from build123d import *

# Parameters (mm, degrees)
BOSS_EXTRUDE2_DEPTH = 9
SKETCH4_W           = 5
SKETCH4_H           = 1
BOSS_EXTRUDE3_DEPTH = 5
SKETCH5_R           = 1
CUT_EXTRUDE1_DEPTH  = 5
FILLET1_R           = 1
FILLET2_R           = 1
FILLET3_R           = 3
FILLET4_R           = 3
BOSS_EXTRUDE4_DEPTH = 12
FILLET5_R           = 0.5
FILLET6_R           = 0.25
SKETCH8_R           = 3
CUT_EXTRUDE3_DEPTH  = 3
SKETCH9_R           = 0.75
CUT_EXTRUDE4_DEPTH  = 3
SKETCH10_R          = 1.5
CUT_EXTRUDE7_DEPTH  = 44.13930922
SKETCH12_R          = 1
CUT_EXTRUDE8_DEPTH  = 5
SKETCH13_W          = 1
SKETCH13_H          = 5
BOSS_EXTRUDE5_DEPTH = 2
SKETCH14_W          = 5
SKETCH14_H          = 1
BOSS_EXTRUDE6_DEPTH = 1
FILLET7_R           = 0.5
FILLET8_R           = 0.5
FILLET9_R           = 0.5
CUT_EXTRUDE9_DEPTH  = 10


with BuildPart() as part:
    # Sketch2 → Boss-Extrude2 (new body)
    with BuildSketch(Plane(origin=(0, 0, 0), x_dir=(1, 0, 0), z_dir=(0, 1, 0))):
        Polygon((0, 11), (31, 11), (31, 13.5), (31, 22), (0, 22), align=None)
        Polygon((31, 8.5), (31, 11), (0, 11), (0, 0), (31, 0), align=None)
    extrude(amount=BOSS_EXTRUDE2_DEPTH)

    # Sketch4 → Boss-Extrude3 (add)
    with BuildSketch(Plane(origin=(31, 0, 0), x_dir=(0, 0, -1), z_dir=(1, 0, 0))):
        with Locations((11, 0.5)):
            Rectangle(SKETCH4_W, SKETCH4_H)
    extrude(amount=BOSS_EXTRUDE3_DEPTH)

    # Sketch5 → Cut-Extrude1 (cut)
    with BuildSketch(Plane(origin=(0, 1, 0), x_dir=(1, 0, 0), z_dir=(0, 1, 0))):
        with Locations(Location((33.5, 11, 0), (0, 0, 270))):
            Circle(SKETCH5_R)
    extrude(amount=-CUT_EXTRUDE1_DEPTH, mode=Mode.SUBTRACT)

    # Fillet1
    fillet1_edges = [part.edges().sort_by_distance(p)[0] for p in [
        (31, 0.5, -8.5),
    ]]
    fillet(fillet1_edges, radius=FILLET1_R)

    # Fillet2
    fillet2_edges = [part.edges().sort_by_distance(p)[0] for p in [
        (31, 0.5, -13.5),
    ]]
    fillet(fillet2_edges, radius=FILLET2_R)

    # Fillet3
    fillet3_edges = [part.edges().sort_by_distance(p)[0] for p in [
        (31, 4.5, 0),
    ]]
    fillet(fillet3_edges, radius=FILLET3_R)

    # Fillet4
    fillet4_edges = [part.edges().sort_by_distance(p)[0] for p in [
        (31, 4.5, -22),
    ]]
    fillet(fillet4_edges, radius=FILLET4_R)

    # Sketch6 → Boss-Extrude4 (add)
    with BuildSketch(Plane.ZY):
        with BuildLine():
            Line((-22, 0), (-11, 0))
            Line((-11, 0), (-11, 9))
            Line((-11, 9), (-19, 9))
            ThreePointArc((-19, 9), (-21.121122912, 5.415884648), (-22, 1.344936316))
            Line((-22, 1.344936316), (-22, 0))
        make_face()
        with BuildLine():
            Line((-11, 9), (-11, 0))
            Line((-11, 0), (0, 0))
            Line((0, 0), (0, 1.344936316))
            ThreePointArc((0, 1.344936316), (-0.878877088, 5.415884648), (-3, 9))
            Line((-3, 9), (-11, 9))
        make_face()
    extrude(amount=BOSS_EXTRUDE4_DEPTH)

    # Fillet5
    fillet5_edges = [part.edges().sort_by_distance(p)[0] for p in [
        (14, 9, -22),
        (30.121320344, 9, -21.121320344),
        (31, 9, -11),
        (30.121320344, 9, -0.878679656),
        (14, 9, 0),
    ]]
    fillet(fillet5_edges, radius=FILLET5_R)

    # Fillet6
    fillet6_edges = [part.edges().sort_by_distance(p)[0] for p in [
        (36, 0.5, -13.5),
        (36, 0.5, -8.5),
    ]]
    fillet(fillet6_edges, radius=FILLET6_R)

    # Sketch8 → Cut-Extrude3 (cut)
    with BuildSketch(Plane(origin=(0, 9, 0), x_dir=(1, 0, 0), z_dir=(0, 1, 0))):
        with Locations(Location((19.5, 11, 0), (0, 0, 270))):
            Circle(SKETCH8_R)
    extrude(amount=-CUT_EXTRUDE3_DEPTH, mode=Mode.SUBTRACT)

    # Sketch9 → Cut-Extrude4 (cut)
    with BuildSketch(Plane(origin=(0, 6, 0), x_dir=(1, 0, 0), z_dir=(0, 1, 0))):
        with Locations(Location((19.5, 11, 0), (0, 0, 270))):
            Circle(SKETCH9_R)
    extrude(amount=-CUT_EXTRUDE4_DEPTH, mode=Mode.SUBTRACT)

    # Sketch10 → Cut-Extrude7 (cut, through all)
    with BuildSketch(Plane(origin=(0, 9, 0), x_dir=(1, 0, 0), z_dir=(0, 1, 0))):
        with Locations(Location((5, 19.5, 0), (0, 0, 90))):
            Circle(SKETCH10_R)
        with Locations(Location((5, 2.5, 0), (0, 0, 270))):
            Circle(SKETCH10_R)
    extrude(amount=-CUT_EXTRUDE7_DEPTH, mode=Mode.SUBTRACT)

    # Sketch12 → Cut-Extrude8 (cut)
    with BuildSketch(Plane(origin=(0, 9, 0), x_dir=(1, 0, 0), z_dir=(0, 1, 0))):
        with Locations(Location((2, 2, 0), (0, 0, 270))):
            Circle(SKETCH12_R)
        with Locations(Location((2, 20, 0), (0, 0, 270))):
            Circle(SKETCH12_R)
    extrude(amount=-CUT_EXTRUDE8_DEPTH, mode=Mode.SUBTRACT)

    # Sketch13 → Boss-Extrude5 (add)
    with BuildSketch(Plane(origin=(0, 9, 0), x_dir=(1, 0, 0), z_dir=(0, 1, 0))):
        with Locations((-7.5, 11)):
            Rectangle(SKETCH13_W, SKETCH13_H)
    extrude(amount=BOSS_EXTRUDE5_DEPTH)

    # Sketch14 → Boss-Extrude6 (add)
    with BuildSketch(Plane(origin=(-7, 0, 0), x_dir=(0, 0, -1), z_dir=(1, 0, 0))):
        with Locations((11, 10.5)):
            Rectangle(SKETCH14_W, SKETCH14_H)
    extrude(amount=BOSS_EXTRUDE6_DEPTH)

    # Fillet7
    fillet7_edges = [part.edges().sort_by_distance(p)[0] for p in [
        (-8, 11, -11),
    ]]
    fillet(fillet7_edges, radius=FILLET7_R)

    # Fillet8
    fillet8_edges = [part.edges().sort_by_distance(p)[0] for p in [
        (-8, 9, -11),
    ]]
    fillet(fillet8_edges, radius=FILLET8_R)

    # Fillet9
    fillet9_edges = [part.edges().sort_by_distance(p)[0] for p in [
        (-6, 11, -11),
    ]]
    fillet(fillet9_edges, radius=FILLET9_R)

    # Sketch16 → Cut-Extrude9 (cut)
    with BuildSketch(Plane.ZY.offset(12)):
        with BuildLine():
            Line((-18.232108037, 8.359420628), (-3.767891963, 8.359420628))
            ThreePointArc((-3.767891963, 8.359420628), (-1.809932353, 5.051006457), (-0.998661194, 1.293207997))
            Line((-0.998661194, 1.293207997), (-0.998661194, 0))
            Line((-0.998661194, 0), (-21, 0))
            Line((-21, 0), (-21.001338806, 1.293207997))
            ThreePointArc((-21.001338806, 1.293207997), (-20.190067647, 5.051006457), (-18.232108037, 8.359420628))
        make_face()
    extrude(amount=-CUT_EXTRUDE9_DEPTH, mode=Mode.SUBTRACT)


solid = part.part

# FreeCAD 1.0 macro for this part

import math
import FreeCAD as App
import Part
import Sketcher


def edges_at(feature, points):
    """Names of the edges that pass closest to the given points."""
    edges = feature.Shape.Edges
    near = lambda p: min(range(len(edges)), key=lambda i: edges[i].distToShape(Part.Vertex(*p))[0])
    return sorted({f"Edge{near(p) + 1}" for p in points})

doc = App.newDocument("Part")
params = doc.addObject("Spreadsheet::Sheet", "Params")
for row, (alias, value) in enumerate([
    ("sketch1_width", "31 mm"),
    ("sketch1_height", "22 mm"),
    ("pad1_length", "9 mm"),
    ("sketch2_width", "1 mm"),
    ("sketch2_height", "5 mm"),
    ("pad2_length", "5 mm"),
    ("sketch3_diameter", "2 mm"),
    ("pocket1_length", "5 mm"),
    ("fillet_radius", "1 mm"),
    ("fillet2_radius", "1 mm"),
    ("fillet3_radius", "3 mm"),
    ("fillet4_radius", "3 mm"),
    ("sketch4_radius", "13 mm"),
    ("sketch4_height", "22 mm"),
    ("sketch4_height2", "16 mm"),
    ("pad3_length", "12 mm"),
    ("fillet5_radius", "0.5 mm"),
    ("fillet6_radius", "0.25 mm"),
    ("sketch5_diameter", "6 mm"),
    ("pocket2_length", "3 mm"),
    ("sketch6_diameter", "1.5 mm"),
    ("pocket3_length", "3 mm"),
    ("sketch7_diameter", "3 mm"),
    ("sketch8_diameter", "2 mm"),
    ("pocket5_length", "5 mm"),
    ("sketch9_width", "1 mm"),
    ("sketch9_height", "5 mm"),
    ("pad4_length", "2 mm"),
    ("sketch10_width", "1 mm"),
    ("sketch10_height", "5 mm"),
    ("pad5_length", "1 mm"),
    ("fillet7_radius", "0.5 mm"),
    ("fillet8_radius", "0.5 mm"),
    ("fillet9_radius", "0.5 mm"),
    ("sketch11_radius", "12 mm"),
    ("pocket6_length", "10 mm"),
], start=1):
    params.set(f"A{row}", alias)
    params.set(f"B{row}", "=" + value)
    params.setAlias(f"B{row}", alias)

body = doc.addObject("PartDesign::Body", "Body")

sketch1 = body.newObject("Sketcher::SketchObject", "Sketch")
sketch1.AttachmentSupport = (doc.getObject("XZ_Plane"), [""])
sketch1.MapMode = "FlatFace"
sketch1.addGeometry([
    Part.LineSegment(App.Vector(31, -22, 0), App.Vector(0, -22, 0)),
    Part.LineSegment(App.Vector(0, -22, 0), App.Vector(0, 0, 0)),
    Part.LineSegment(App.Vector(0, 0, 0), App.Vector(31, 0, 0)),
    Part.LineSegment(App.Vector(31, 0, 0), App.Vector(31, -22, 0)),
], False)
sketch1.addConstraint([
    Sketcher.Constraint("Coincident", 0, 2, 1, 1),
    Sketcher.Constraint("Coincident", 1, 2, 2, 1),
    Sketcher.Constraint("Coincident", 2, 2, 3, 1),
    Sketcher.Constraint("Coincident", 3, 2, 0, 1),
    Sketcher.Constraint("Horizontal", 0),
    Sketcher.Constraint("Vertical", 1),
    Sketcher.Constraint("Horizontal", 2),
    Sketcher.Constraint("Vertical", 3),
    Sketcher.Constraint("Coincident", 1, 2, -1, 1),
    Sketcher.Constraint("DistanceX", 0, 2, 0, 1, 31.0),
    Sketcher.Constraint("DistanceY", 1, 1, 1, 2, 22.0),
])
sketch1.setExpression("Constraints[9]", "Params.sketch1_width")
sketch1.setExpression("Constraints[10]", "Params.sketch1_height")
pad1 = body.newObject("PartDesign::Pad", "Pad")
pad1.Profile = sketch1
pad1.setExpression("Length", "Params.pad1_length")
pad1.Reversed = True

sketch2 = body.newObject("Sketcher::SketchObject", "Sketch001")
sketch2.AttachmentSupport = (doc.getObject("YZ_Plane"), [""])
sketch2.MapMode = "FlatFace"
sketch2.AttachmentOffset = App.Placement(App.Vector(0, 0, 31), App.Rotation())
sketch2.addGeometry([
    Part.LineSegment(App.Vector(1, -8.5, 0), App.Vector(0, -8.5, 0)),
    Part.LineSegment(App.Vector(0, -8.5, 0), App.Vector(0, -13.5, 0)),
    Part.LineSegment(App.Vector(0, -13.5, 0), App.Vector(1, -13.5, 0)),
    Part.LineSegment(App.Vector(1, -13.5, 0), App.Vector(1, -8.5, 0)),
], False)
sketch2.addConstraint([
    Sketcher.Constraint("Coincident", 0, 2, 1, 1),
    Sketcher.Constraint("Coincident", 1, 2, 2, 1),
    Sketcher.Constraint("Coincident", 2, 2, 3, 1),
    Sketcher.Constraint("Coincident", 3, 2, 0, 1),
    Sketcher.Constraint("Horizontal", 0),
    Sketcher.Constraint("Vertical", 1),
    Sketcher.Constraint("Horizontal", 2),
    Sketcher.Constraint("Vertical", 3),
    Sketcher.Constraint("PointOnObject", 0, 2, -2),
    Sketcher.Constraint("DistanceX", 0, 2, 0, 1, 1.0),
    Sketcher.Constraint("DistanceY", 1, 2, 1, 1, 5.0),
    Sketcher.Constraint("DistanceY", 0, 2, -1, 1, 8.5),
])
sketch2.setExpression("Constraints[9]", "Params.sketch2_width")
sketch2.setExpression("Constraints[10]", "Params.sketch2_height")
pad2 = body.newObject("PartDesign::Pad", "Pad001")
pad2.Profile = sketch2
pad2.setExpression("Length", "Params.pad2_length")

sketch3 = body.newObject("Sketcher::SketchObject", "Sketch002")
sketch3.AttachmentSupport = (doc.getObject("XZ_Plane"), [""])
sketch3.MapMode = "FlatFace"
sketch3.AttachmentOffset = App.Placement(App.Vector(0, 0, -1), App.Rotation())
sketch3.addGeometry(Part.Circle(App.Vector(33.5, -11, 0), App.Vector(0, 0, 1), 1), False)
sketch3.addConstraint([
    Sketcher.Constraint("Diameter", 0, 2.0),
    Sketcher.Constraint("DistanceY", 0, 3, -1, 1, 11.0),
    Sketcher.Constraint("DistanceX", -1, 1, 0, 3, 33.5),
])
sketch3.setExpression("Constraints[0]", "Params.sketch3_diameter")
pocket1 = body.newObject("PartDesign::Pocket", "Pocket")
pocket1.Profile = sketch3
pocket1.setExpression("Length", "Params.pocket1_length")
pocket1.Reversed = True
doc.recompute()

fillet = body.newObject("PartDesign::Fillet", "Fillet")
fillet.Base = (pocket1, edges_at(pocket1, [(31, 0.5, -8.5)]))
fillet.setExpression("Radius", "Params.fillet_radius")
doc.recompute()

fillet2 = body.newObject("PartDesign::Fillet", "Fillet001")
fillet2.Base = (fillet, edges_at(fillet, [(31, 0.5, -13.5)]))
fillet2.setExpression("Radius", "Params.fillet2_radius")
doc.recompute()

fillet3 = body.newObject("PartDesign::Fillet", "Fillet002")
fillet3.Base = (fillet2, edges_at(fillet2, [(31, 4.5, 0)]))
fillet3.setExpression("Radius", "Params.fillet3_radius")
doc.recompute()

fillet4 = body.newObject("PartDesign::Fillet", "Fillet003")
fillet4.Base = (fillet3, edges_at(fillet3, [(31, 4.5, -22)]))
fillet4.setExpression("Radius", "Params.fillet4_radius")

sketch4 = body.newObject("Sketcher::SketchObject", "Sketch003")
sketch4.AttachmentSupport = (doc.getObject("YZ_Plane"), [""])
sketch4.MapMode = "FlatFace"
sketch4.addGeometry([
    Part.LineSegment(App.Vector(0, -22, 0), App.Vector(0, 0, 0)),
    Part.LineSegment(App.Vector(0, 0, 0), App.Vector(1.344936, 0, 0)),
    Part.ArcOfCircle(Part.Circle(App.Vector(0.672468, -12.982596, 0), App.Vector(0, 0, 1), 13), math.radians(50.164965), math.radians(87.034862)),
    Part.LineSegment(App.Vector(9, -3, 0), App.Vector(9, -19, 0)),
    Part.ArcOfCircle(Part.Circle(App.Vector(0.672468, -9.017404, 0), App.Vector(0, 0, 1), 13), math.radians(-87.034862), math.radians(-50.164965)),
    Part.LineSegment(App.Vector(1.344936, -22, 0), App.Vector(0, -22, 0)),
], False)
sketch4.addConstraint([
    Sketcher.Constraint("Coincident", 0, 2, 1, 1),
    Sketcher.Constraint("Coincident", 1, 2, 2, 2),
    Sketcher.Constraint("Coincident", 2, 1, 3, 1),
    Sketcher.Constraint("Coincident", 3, 2, 4, 2),
    Sketcher.Constraint("Coincident", 4, 1, 5, 1),
    Sketcher.Constraint("Coincident", 5, 2, 0, 1),
    Sketcher.Constraint("Vertical", 0),
    Sketcher.Constraint("Horizontal", 1),
    Sketcher.Constraint("Vertical", 3),
    Sketcher.Constraint("Horizontal", 5),
    Sketcher.Constraint("Coincident", 0, 2, -1, 1),
    Sketcher.Constraint("Equal", 2, 4),
    Sketcher.Constraint("Vertical", 2, 3, 4, 3),
    Sketcher.Constraint("Vertical", 1, 2, 4, 1),
    Sketcher.Constraint("Radius", 2, 13.0),
    Sketcher.Constraint("DistanceY", 0, 1, 0, 2, 22.0),
    Sketcher.Constraint("DistanceY", 3, 2, 3, 1, 16.0),
    Sketcher.Constraint("DistanceX", -1, 1, 2, 1, 9.0),
    Sketcher.Constraint("DistanceX", 1, 1, 1, 2, 1.344936),
])
sketch4.setExpression("Constraints[14]", "Params.sketch4_radius")
sketch4.setExpression("Constraints[15]", "Params.sketch4_height")
sketch4.setExpression("Constraints[16]", "Params.sketch4_height2")
pad3 = body.newObject("PartDesign::Pad", "Pad002")
pad3.Profile = sketch4
pad3.setExpression("Length", "Params.pad3_length")
pad3.Reversed = True
doc.recompute()

fillet5 = body.newObject("PartDesign::Fillet", "Fillet004")
fillet5.Base = (pad3, edges_at(pad3, [
    (14, 9, -22),
    (30.121, 9, -21.121),
    (31, 9, -11),
    (30.121, 9, -0.879),
    (14, 9, 0),
]))
fillet5.setExpression("Radius", "Params.fillet5_radius")
doc.recompute()

fillet6 = body.newObject("PartDesign::Fillet", "Fillet005")
fillet6.Base = (fillet5, edges_at(fillet5, [(36, 0.5, -13.5), (36, 0.5, -8.5)]))
fillet6.setExpression("Radius", "Params.fillet6_radius")

sketch5 = body.newObject("Sketcher::SketchObject", "Sketch004")
sketch5.AttachmentSupport = (doc.getObject("XZ_Plane"), [""])
sketch5.MapMode = "FlatFace"
sketch5.AttachmentOffset = App.Placement(App.Vector(0, 0, -9), App.Rotation())
sketch5.addGeometry(Part.Circle(App.Vector(19.5, -11, 0), App.Vector(0, 0, 1), 3), False)
sketch5.addConstraint([
    Sketcher.Constraint("Diameter", 0, 6.0),
    Sketcher.Constraint("DistanceY", 0, 3, -1, 1, 11.0),
    Sketcher.Constraint("DistanceX", -1, 1, 0, 3, 19.5),
])
sketch5.setExpression("Constraints[0]", "Params.sketch5_diameter")
pocket2 = body.newObject("PartDesign::Pocket", "Pocket001")
pocket2.Profile = sketch5
pocket2.setExpression("Length", "Params.pocket2_length")
pocket2.Reversed = True

sketch6 = body.newObject("Sketcher::SketchObject", "Sketch005")
sketch6.AttachmentSupport = (doc.getObject("XZ_Plane"), [""])
sketch6.MapMode = "FlatFace"
sketch6.AttachmentOffset = App.Placement(App.Vector(0, 0, -6), App.Rotation())
sketch6.addGeometry(Part.Circle(App.Vector(19.5, -11, 0), App.Vector(0, 0, 1), 0.75), False)
sketch6.addConstraint([
    Sketcher.Constraint("Diameter", 0, 1.5),
    Sketcher.Constraint("DistanceY", 0, 3, -1, 1, 11.0),
    Sketcher.Constraint("DistanceX", -1, 1, 0, 3, 19.5),
])
sketch6.setExpression("Constraints[0]", "Params.sketch6_diameter")
pocket3 = body.newObject("PartDesign::Pocket", "Pocket002")
pocket3.Profile = sketch6
pocket3.setExpression("Length", "Params.pocket3_length")
pocket3.Reversed = True

sketch7 = body.newObject("Sketcher::SketchObject", "Sketch006")
sketch7.AttachmentSupport = (doc.getObject("XZ_Plane"), [""])
sketch7.MapMode = "FlatFace"
sketch7.AttachmentOffset = App.Placement(App.Vector(0, 0, -9), App.Rotation())
sketch7.addGeometry([
    Part.Circle(App.Vector(5, -19.5, 0), App.Vector(0, 0, 1), 1.5),
    Part.Circle(App.Vector(5, -2.5, 0), App.Vector(0, 0, 1), 1.5),
], False)
sketch7.addConstraint([
    Sketcher.Constraint("Equal", 0, 1),
    Sketcher.Constraint("Vertical", 0, 3, 1, 3),
    Sketcher.Constraint("Diameter", 0, 3.0),
    Sketcher.Constraint("DistanceX", -1, 1, 0, 3, 5.0),
    Sketcher.Constraint("DistanceY", 0, 3, 1, 3, 17.0),
    Sketcher.Constraint("DistanceY", 0, 3, -1, 1, 19.5),
])
sketch7.setExpression("Constraints[2]", "Params.sketch7_diameter")
pocket4 = body.newObject("PartDesign::Pocket", "Pocket003")
pocket4.Profile = sketch7
pocket4.Type = "ThroughAll"
pocket4.Reversed = True

sketch8 = body.newObject("Sketcher::SketchObject", "Sketch007")
sketch8.AttachmentSupport = (doc.getObject("XZ_Plane"), [""])
sketch8.MapMode = "FlatFace"
sketch8.AttachmentOffset = App.Placement(App.Vector(0, 0, -9), App.Rotation())
sketch8.addGeometry([
    Part.Circle(App.Vector(2, -2, 0), App.Vector(0, 0, 1), 1),
    Part.Circle(App.Vector(2, -20, 0), App.Vector(0, 0, 1), 1),
], False)
sketch8.addConstraint([
    Sketcher.Constraint("Equal", 0, 1),
    Sketcher.Constraint("Vertical", 0, 3, 1, 3),
    Sketcher.Constraint("Diameter", 0, 2.0),
    Sketcher.Constraint("DistanceX", -1, 1, 0, 3, 2.0),
    Sketcher.Constraint("DistanceY", 0, 3, -1, 1, 2.0),
    Sketcher.Constraint("DistanceY", 1, 3, -1, 1, 20.0),
])
sketch8.setExpression("Constraints[2]", "Params.sketch8_diameter")
pocket5 = body.newObject("PartDesign::Pocket", "Pocket004")
pocket5.Profile = sketch8
pocket5.setExpression("Length", "Params.pocket5_length")
pocket5.Reversed = True

sketch9 = body.newObject("Sketcher::SketchObject", "Sketch008")
sketch9.AttachmentSupport = (doc.getObject("XZ_Plane"), [""])
sketch9.MapMode = "FlatFace"
sketch9.AttachmentOffset = App.Placement(App.Vector(0, 0, -9), App.Rotation())
sketch9.addGeometry([
    Part.LineSegment(App.Vector(-8, -13.5, 0), App.Vector(-8, -8.5, 0)),
    Part.LineSegment(App.Vector(-8, -8.5, 0), App.Vector(-7, -8.5, 0)),
    Part.LineSegment(App.Vector(-7, -8.5, 0), App.Vector(-7, -13.5, 0)),
    Part.LineSegment(App.Vector(-7, -13.5, 0), App.Vector(-8, -13.5, 0)),
], False)
sketch9.addConstraint([
    Sketcher.Constraint("Coincident", 0, 2, 1, 1),
    Sketcher.Constraint("Coincident", 1, 2, 2, 1),
    Sketcher.Constraint("Coincident", 2, 2, 3, 1),
    Sketcher.Constraint("Coincident", 3, 2, 0, 1),
    Sketcher.Constraint("Vertical", 0),
    Sketcher.Constraint("Horizontal", 1),
    Sketcher.Constraint("Vertical", 2),
    Sketcher.Constraint("Horizontal", 3),
    Sketcher.Constraint("DistanceX", 1, 1, 1, 2, 1.0),
    Sketcher.Constraint("DistanceY", 0, 1, 0, 2, 5.0),
    Sketcher.Constraint("DistanceX", 0, 2, -1, 1, 8.0),
    Sketcher.Constraint("DistanceY", 0, 2, -1, 1, 8.5),
])
sketch9.setExpression("Constraints[8]", "Params.sketch9_width")
sketch9.setExpression("Constraints[9]", "Params.sketch9_height")
pad4 = body.newObject("PartDesign::Pad", "Pad003")
pad4.Profile = sketch9
pad4.setExpression("Length", "Params.pad4_length")
pad4.Reversed = True

sketch10 = body.newObject("Sketcher::SketchObject", "Sketch009")
sketch10.AttachmentSupport = (doc.getObject("YZ_Plane"), [""])
sketch10.MapMode = "FlatFace"
sketch10.AttachmentOffset = App.Placement(App.Vector(0, 0, -7), App.Rotation())
sketch10.addGeometry([
    Part.LineSegment(App.Vector(11, -8.5, 0), App.Vector(10, -8.5, 0)),
    Part.LineSegment(App.Vector(10, -8.5, 0), App.Vector(10, -13.5, 0)),
    Part.LineSegment(App.Vector(10, -13.5, 0), App.Vector(11, -13.5, 0)),
    Part.LineSegment(App.Vector(11, -13.5, 0), App.Vector(11, -8.5, 0)),
], False)
sketch10.addConstraint([
    Sketcher.Constraint("Coincident", 0, 2, 1, 1),
    Sketcher.Constraint("Coincident", 1, 2, 2, 1),
    Sketcher.Constraint("Coincident", 2, 2, 3, 1),
    Sketcher.Constraint("Coincident", 3, 2, 0, 1),
    Sketcher.Constraint("Horizontal", 0),
    Sketcher.Constraint("Vertical", 1),
    Sketcher.Constraint("Horizontal", 2),
    Sketcher.Constraint("Vertical", 3),
    Sketcher.Constraint("DistanceX", 0, 2, 0, 1, 1.0),
    Sketcher.Constraint("DistanceY", 1, 2, 1, 1, 5.0),
    Sketcher.Constraint("DistanceX", -1, 1, 0, 2, 10.0),
    Sketcher.Constraint("DistanceY", 0, 2, -1, 1, 8.5),
])
sketch10.setExpression("Constraints[8]", "Params.sketch10_width")
sketch10.setExpression("Constraints[9]", "Params.sketch10_height")
pad5 = body.newObject("PartDesign::Pad", "Pad004")
pad5.Profile = sketch10
pad5.setExpression("Length", "Params.pad5_length")
doc.recompute()

fillet7 = body.newObject("PartDesign::Fillet", "Fillet006")
fillet7.Base = (pad5, edges_at(pad5, [(-8, 11, -11)]))
fillet7.setExpression("Radius", "Params.fillet7_radius")
doc.recompute()

fillet8 = body.newObject("PartDesign::Fillet", "Fillet007")
fillet8.Base = (fillet7, edges_at(fillet7, [(-8, 9, -11)]))
fillet8.setExpression("Radius", "Params.fillet8_radius")
doc.recompute()

fillet9 = body.newObject("PartDesign::Fillet", "Fillet008")
fillet9.Base = (fillet8, edges_at(fillet8, [(-6, 11, -11)]))
fillet9.setExpression("Radius", "Params.fillet9_radius")

sketch11 = body.newObject("Sketcher::SketchObject", "Sketch010")
sketch11.AttachmentSupport = (doc.getObject("YZ_Plane"), [""])
sketch11.MapMode = "FlatFace"
sketch11.AttachmentOffset = App.Placement(App.Vector(0, 0, -12), App.Rotation())
sketch11.addGeometry([
    Part.LineSegment(App.Vector(8.359421, -3.767892, 0), App.Vector(8.359421, -18.232108, 0)),
    Part.ArcOfCircle(Part.Circle(App.Vector(0.672468, -9.017404, 0), App.Vector(0, 0, 1), 12), math.radians(-87.034862), math.radians(-50.164965)),
    Part.LineSegment(App.Vector(1.293208, -21.001339, 0), App.Vector(0, -21, 0)),
    Part.LineSegment(App.Vector(0, -21, 0), App.Vector(0, -0.998661, 0)),
    Part.LineSegment(App.Vector(0, -0.998661, 0), App.Vector(1.293208, -0.998661, 0)),
    Part.ArcOfCircle(Part.Circle(App.Vector(0.672468, -12.982596, 0), App.Vector(0, 0, 1), 12), math.radians(50.164965), math.radians(87.034862)),
], False)
sketch11.addConstraint([
    Sketcher.Constraint("Coincident", 0, 2, 1, 2),
    Sketcher.Constraint("Coincident", 1, 1, 2, 1),
    Sketcher.Constraint("Coincident", 2, 2, 3, 1),
    Sketcher.Constraint("Coincident", 3, 2, 4, 1),
    Sketcher.Constraint("Coincident", 4, 2, 5, 2),
    Sketcher.Constraint("Coincident", 5, 1, 0, 1),
    Sketcher.Constraint("Vertical", 0),
    Sketcher.Constraint("Vertical", 3),
    Sketcher.Constraint("Horizontal", 4),
    Sketcher.Constraint("Equal", 1, 5),
    Sketcher.Constraint("PointOnObject", 2, 2, -2),
    Sketcher.Constraint("Vertical", 1, 3, 5, 3),
    Sketcher.Constraint("Vertical", 1, 1, 4, 2),
    Sketcher.Constraint("Radius", 1, 12.0),
    Sketcher.Constraint("DistanceY", 2, 2, -1, 1, 21.0),
    Sketcher.Constraint("DistanceY", 3, 1, 3, 2, 20.001339),
    Sketcher.Constraint("Distance", 2, 1.293209),
    Sketcher.Constraint("DistanceY", 0, 2, 0, 1, 14.464216),
    Sketcher.Constraint("DistanceX", -1, 1, 1, 3, 0.672468),
    Sketcher.Constraint("DistanceX", -1, 1, 0, 2, 8.359421),
])
sketch11.setExpression("Constraints[13]", "Params.sketch11_radius")
pocket6 = body.newObject("PartDesign::Pocket", "Pocket005")
pocket6.Profile = sketch11
pocket6.setExpression("Length", "Params.pocket6_length")
pocket6.Reversed = True

doc.recompute()
